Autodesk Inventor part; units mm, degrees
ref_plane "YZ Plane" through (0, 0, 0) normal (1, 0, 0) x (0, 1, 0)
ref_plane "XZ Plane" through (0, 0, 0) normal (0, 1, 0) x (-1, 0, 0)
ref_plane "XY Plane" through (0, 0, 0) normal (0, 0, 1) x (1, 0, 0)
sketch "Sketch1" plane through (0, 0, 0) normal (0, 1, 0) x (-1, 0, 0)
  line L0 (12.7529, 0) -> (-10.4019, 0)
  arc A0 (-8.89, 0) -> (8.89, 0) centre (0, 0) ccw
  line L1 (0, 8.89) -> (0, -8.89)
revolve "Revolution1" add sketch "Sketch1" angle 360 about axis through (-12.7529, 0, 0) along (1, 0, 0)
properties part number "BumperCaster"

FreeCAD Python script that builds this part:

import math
import FreeCAD as App
import Part
import Sketcher
Q = App.Units.Quantity

doc = App.newDocument("Part")
body = doc.addObject("PartDesign::Body", "Body")

sketch1 = body.newObject("Sketcher::SketchObject", "Sketch")
sketch1.AttachmentSupport = (doc.getObject("XZ_Plane"), [""])
sketch1.MapMode = "FlatFace"
sketch1.addGeometry([
    Part.LineSegment(App.Vector(-9, 0, 0), App.Vector(9, 0, 0)),
    Part.ArcOfCircle(Part.Circle(App.Vector(0, 0, 0), App.Vector(0, 0, 1), 9), math.radians(180), math.radians(360)),
], False)
sketch1.addConstraint([
    Sketcher.Constraint("Coincident", 0, 1, 1, 1),
    Sketcher.Constraint("Coincident", 1, 2, 0, 2),
    Sketcher.Constraint("Horizontal", 0),
    Sketcher.Constraint("Coincident", 1, 3, -1, 1),
    Sketcher.Constraint("PointOnObject", 0, 1, -1),
    Sketcher.Constraint("Radius", 1, Q("0.35 in")),
])
revolution = body.newObject("PartDesign::Revolution", "Revolution")
revolution.Profile = sketch1
revolution.ReferenceAxis = (sketch1, ["H_Axis"])
revolution.Angle = 360

doc.recompute()
